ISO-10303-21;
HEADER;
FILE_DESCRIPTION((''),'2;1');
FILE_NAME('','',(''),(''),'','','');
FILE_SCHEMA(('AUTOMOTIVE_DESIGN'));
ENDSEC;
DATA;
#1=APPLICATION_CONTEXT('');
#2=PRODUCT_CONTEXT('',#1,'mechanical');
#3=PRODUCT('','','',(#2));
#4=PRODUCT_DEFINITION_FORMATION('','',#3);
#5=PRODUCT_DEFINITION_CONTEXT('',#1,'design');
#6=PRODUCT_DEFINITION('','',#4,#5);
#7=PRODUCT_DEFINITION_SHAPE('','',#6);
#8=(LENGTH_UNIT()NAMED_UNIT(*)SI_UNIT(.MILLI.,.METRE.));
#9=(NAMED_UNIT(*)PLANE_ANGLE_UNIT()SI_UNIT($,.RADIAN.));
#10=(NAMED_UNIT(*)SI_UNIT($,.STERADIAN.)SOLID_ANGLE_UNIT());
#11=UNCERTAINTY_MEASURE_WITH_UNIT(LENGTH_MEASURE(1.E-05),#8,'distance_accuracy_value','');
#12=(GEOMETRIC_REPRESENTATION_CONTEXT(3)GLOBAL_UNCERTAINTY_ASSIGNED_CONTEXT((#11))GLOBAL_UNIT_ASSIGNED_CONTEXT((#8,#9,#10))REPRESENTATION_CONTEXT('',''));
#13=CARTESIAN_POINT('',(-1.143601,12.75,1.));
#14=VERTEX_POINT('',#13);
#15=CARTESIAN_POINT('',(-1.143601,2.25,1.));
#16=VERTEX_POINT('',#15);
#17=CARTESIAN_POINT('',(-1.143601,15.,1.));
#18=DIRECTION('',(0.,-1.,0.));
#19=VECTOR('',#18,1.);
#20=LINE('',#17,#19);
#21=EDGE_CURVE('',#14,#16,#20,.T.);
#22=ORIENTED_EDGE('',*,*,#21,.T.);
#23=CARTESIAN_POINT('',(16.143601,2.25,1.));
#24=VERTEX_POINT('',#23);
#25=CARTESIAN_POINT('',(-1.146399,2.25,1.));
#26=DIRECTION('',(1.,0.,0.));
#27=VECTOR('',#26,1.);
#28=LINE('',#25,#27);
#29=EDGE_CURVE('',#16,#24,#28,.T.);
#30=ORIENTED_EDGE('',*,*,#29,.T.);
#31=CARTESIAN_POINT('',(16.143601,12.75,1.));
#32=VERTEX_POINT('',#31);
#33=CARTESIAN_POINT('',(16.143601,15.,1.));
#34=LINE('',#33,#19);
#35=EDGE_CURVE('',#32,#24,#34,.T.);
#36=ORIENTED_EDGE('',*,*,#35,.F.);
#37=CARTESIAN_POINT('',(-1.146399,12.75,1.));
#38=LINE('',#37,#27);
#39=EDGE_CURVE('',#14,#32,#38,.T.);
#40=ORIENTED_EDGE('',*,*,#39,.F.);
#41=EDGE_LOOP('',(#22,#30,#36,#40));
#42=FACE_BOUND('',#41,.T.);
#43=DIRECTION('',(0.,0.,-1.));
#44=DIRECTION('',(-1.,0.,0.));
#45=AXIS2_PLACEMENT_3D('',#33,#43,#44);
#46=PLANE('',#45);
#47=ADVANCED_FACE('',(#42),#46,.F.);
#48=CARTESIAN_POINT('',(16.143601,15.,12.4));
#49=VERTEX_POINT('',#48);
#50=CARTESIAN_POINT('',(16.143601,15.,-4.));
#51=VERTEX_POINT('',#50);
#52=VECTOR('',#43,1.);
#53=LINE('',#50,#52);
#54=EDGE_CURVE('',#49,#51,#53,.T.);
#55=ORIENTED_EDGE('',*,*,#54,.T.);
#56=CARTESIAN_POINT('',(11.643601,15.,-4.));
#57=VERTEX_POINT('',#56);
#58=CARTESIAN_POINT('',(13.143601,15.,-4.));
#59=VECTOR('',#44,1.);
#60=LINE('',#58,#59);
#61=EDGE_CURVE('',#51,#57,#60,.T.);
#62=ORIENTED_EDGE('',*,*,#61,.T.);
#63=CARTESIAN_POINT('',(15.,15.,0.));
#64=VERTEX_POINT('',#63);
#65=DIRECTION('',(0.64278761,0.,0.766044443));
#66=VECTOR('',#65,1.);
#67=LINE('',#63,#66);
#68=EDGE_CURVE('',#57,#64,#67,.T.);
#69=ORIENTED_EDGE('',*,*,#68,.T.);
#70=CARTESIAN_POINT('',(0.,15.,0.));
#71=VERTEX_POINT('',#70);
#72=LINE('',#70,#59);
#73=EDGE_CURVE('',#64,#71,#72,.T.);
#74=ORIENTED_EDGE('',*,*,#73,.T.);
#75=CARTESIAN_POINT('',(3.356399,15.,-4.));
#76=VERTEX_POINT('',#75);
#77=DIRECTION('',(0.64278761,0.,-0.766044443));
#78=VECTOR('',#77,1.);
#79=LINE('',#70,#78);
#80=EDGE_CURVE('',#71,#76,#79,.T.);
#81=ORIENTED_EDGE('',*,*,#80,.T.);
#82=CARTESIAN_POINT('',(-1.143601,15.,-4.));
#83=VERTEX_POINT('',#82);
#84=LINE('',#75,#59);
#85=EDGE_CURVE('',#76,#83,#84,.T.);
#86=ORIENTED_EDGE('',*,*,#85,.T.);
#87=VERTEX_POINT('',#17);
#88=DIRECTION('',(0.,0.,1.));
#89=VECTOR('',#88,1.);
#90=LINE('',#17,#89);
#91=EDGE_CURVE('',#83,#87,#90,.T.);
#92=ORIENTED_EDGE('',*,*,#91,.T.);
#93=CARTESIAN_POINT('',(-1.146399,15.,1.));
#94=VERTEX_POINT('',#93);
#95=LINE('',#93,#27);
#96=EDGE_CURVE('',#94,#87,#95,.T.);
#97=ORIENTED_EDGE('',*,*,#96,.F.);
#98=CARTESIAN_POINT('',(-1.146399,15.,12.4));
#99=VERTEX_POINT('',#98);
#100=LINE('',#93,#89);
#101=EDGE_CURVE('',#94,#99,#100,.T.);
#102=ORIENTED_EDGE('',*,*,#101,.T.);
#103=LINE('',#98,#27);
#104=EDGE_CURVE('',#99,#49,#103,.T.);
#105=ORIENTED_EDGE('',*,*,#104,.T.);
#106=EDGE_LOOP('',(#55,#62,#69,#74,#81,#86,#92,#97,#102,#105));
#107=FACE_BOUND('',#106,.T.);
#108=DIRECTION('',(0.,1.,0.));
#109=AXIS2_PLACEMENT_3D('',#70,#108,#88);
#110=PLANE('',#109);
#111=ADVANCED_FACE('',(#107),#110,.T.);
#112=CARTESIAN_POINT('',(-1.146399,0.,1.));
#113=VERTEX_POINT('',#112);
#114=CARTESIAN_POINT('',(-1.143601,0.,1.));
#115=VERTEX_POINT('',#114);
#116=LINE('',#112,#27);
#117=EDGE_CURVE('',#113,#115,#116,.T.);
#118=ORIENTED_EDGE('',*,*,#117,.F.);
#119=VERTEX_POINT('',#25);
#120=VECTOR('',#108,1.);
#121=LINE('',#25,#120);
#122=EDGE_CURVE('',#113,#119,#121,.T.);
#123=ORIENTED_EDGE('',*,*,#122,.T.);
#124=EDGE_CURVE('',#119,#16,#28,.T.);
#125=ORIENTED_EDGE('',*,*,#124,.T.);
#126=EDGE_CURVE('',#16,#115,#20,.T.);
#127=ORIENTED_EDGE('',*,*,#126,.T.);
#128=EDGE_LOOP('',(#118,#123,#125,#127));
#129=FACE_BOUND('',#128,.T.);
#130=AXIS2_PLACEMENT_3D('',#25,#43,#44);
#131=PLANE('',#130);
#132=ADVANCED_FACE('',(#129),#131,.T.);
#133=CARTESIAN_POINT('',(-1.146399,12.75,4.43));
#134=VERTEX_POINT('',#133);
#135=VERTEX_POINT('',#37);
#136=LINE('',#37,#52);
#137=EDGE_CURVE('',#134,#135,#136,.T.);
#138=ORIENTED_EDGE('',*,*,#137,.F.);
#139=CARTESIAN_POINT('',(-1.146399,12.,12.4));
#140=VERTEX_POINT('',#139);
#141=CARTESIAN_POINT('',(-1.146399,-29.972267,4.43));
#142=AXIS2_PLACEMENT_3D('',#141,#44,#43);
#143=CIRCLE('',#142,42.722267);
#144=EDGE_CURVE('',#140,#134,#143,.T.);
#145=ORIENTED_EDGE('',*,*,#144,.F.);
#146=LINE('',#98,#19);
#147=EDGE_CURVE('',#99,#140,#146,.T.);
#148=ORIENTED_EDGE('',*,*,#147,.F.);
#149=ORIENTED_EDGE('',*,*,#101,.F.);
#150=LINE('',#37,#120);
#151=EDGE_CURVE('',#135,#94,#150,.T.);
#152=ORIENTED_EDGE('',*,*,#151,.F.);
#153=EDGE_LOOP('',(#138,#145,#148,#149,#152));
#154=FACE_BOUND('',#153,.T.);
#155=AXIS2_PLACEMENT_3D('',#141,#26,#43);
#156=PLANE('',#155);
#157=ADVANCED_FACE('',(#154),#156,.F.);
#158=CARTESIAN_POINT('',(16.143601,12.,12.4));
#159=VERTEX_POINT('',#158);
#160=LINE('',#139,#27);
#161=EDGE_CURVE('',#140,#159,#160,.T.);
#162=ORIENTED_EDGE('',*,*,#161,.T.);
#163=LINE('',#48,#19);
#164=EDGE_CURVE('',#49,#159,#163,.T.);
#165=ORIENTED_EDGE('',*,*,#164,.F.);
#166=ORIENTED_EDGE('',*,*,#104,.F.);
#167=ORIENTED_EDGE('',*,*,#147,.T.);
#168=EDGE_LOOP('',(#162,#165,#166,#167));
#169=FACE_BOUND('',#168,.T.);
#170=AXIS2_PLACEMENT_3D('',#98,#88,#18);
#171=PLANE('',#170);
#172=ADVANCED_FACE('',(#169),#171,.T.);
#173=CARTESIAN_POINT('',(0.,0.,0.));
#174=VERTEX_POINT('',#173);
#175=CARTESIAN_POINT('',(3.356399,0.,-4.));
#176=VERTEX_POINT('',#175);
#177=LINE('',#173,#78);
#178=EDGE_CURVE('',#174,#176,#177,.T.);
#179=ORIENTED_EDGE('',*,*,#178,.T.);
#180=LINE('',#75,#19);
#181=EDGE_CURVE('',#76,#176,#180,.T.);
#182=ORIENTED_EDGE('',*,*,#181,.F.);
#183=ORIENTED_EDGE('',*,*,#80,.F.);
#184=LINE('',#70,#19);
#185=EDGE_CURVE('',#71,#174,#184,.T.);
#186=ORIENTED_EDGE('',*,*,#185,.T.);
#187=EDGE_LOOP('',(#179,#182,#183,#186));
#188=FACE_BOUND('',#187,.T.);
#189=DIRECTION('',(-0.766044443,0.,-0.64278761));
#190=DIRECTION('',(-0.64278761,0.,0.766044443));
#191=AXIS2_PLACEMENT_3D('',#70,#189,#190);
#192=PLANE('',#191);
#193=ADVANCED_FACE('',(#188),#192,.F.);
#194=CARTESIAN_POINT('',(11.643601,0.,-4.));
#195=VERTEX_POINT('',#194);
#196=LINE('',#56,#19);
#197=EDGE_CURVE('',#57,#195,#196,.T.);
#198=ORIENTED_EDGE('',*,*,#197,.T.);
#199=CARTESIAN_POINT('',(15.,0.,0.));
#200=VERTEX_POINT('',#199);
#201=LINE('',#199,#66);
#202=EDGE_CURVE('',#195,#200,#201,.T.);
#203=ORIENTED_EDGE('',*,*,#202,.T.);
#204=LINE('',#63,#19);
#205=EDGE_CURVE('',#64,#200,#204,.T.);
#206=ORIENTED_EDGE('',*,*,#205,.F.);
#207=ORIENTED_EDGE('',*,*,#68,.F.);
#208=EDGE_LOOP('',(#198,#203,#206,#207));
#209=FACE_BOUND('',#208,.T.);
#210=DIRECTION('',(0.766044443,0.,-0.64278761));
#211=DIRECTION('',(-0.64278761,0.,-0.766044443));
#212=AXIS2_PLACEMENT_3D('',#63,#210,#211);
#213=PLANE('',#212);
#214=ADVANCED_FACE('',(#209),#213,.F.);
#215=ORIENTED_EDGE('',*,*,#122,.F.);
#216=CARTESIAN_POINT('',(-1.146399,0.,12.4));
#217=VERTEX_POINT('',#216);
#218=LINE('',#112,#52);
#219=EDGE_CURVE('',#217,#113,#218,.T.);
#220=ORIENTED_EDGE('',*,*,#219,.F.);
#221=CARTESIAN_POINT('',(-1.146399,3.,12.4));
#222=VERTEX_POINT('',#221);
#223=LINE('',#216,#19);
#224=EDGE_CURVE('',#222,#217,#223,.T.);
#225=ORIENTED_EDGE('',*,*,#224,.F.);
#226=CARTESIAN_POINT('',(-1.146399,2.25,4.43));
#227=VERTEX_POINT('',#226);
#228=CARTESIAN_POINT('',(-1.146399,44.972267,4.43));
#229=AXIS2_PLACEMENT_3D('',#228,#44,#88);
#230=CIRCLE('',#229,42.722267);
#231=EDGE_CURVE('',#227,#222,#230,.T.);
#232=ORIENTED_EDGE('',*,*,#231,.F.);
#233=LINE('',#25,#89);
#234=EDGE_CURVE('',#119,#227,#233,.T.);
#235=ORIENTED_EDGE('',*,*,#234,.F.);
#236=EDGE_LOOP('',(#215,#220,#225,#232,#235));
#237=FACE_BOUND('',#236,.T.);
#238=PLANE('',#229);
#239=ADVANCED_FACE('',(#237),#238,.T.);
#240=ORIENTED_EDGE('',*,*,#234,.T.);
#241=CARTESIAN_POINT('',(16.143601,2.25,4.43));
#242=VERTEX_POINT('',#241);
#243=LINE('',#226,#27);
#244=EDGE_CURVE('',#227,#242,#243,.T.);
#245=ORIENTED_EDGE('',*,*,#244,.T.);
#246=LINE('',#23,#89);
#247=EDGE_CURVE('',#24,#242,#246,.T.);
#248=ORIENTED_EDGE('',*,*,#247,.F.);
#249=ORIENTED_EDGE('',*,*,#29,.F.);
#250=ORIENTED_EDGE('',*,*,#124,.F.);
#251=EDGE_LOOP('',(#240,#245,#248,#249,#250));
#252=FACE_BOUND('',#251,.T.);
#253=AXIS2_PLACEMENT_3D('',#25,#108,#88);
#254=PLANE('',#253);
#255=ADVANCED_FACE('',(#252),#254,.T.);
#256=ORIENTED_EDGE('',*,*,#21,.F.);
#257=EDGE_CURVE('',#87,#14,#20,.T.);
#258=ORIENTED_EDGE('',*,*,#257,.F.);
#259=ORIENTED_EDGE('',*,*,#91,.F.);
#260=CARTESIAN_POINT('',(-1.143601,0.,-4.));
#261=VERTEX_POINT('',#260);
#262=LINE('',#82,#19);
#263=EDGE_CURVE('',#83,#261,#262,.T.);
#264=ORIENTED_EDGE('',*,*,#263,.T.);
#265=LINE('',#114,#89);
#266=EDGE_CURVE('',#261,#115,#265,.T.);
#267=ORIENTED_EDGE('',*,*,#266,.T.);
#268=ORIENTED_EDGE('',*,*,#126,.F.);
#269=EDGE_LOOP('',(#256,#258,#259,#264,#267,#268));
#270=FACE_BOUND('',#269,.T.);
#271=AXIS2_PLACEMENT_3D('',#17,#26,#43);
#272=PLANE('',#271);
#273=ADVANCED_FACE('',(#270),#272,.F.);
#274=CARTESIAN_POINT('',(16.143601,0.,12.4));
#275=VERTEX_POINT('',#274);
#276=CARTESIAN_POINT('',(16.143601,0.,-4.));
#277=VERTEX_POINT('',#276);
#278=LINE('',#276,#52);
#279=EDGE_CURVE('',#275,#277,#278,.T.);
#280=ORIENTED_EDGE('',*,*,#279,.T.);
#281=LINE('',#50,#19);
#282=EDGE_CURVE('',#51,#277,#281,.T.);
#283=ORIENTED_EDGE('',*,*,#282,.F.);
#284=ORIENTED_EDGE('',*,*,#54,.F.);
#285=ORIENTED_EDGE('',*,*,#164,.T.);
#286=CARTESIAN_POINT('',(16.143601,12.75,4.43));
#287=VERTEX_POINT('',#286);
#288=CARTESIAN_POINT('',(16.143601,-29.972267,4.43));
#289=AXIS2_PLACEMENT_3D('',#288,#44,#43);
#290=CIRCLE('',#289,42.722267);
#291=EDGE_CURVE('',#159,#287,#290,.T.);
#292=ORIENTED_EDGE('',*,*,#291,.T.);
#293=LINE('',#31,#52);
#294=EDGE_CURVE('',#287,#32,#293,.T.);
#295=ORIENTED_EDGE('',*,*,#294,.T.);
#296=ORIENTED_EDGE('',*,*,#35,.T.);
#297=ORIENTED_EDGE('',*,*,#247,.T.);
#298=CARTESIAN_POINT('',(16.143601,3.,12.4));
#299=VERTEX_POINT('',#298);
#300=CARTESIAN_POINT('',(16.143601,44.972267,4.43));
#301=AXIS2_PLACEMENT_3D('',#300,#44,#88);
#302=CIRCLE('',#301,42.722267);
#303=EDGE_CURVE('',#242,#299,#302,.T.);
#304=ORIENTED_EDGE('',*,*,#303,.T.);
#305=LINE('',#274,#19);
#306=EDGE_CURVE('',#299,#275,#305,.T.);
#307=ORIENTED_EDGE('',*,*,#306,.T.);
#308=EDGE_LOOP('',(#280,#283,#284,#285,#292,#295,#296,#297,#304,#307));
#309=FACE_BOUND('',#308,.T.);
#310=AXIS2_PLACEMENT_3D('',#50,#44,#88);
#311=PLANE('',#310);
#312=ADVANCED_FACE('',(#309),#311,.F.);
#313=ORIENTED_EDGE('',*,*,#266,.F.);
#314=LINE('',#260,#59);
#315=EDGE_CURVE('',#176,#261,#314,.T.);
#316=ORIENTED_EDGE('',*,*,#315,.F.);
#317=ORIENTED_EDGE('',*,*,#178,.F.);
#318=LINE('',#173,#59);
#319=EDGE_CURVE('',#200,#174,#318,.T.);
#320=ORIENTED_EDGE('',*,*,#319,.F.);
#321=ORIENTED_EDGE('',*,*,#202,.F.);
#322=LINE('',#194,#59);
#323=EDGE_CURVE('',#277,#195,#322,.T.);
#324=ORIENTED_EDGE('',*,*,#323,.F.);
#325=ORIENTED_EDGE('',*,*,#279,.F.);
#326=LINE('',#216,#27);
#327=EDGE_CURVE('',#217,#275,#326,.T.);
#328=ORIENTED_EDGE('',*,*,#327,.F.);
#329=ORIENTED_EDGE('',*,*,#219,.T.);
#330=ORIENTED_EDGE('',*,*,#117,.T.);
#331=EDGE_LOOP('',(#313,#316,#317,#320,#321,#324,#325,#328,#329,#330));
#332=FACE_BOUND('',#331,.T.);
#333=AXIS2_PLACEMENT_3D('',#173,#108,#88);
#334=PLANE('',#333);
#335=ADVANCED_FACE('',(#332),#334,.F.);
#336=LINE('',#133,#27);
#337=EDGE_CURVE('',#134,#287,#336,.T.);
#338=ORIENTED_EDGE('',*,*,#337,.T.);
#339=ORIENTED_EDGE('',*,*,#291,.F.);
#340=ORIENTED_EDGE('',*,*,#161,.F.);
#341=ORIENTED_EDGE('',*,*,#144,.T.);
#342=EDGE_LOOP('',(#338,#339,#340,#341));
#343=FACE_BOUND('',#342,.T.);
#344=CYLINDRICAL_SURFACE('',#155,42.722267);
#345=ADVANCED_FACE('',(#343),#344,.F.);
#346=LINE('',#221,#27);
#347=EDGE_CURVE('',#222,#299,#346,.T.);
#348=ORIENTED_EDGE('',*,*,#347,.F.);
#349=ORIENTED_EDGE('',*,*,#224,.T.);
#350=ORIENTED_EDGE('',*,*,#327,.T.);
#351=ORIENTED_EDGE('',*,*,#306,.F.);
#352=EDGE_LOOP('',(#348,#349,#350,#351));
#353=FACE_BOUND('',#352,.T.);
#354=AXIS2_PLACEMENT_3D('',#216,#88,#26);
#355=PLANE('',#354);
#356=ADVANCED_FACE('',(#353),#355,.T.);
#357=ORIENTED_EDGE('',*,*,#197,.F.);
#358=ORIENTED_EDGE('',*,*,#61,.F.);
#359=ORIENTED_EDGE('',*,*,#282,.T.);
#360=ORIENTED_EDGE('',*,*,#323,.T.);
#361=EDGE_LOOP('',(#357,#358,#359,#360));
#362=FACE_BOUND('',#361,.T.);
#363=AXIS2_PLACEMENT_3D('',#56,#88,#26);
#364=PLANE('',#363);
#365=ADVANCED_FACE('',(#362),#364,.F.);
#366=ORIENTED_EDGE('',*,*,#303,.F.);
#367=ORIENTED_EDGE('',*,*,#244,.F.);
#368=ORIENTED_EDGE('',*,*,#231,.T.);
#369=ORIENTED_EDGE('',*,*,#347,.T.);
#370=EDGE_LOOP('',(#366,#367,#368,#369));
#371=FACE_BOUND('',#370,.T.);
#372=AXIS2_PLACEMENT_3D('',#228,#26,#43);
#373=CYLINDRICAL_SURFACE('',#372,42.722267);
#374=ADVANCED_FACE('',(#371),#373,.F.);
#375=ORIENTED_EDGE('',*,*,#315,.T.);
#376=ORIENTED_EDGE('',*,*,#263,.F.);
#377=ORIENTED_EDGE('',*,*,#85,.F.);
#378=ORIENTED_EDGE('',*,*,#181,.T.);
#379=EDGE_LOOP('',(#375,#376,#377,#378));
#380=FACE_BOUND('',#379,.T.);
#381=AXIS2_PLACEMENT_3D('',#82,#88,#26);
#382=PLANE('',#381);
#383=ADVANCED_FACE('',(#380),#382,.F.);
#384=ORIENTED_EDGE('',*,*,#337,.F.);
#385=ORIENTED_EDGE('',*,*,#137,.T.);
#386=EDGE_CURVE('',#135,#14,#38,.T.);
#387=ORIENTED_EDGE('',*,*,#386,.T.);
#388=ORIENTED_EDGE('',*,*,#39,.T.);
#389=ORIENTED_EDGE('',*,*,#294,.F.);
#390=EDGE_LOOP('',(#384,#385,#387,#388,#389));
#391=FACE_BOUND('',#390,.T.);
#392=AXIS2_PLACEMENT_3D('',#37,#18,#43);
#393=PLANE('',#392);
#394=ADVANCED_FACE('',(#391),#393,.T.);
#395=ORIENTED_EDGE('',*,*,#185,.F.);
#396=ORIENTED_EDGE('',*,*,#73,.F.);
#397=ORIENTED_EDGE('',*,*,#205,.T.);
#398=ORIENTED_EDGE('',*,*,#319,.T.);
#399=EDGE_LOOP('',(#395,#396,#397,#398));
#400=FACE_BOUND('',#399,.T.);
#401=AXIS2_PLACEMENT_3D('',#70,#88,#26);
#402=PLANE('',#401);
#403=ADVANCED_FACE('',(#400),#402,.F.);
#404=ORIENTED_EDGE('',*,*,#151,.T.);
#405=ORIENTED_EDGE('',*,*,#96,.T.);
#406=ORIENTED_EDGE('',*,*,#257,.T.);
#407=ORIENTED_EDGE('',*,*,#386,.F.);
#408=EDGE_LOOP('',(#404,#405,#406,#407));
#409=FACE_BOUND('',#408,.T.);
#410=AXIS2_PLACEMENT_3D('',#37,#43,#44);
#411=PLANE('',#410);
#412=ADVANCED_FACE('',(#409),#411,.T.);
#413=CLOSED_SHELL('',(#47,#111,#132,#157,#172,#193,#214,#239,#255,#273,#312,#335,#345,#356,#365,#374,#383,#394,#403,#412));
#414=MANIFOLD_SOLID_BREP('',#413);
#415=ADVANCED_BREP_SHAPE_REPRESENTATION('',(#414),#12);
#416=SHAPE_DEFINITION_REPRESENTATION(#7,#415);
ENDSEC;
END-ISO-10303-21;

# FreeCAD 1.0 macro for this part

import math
import FreeCAD as App
import Part
import Sketcher
Q = App.Units.Quantity


def add_polygon(sketch, points):
    """Adds a closed chain of lines whose ends are joined by coincident constraints."""
    first, n = sketch.GeometryCount, len(points)
    for a, b in zip(points, points[1:] + points[:1]):
        sketch.addGeometry(Part.LineSegment(App.Vector(*a, 0), App.Vector(*b, 0)), False)
    for i in range(n):
        sketch.addConstraint(Sketcher.Constraint("Coincident", first + i, 2, first + (i + 1) % n, 1))

doc = App.newDocument("Part")
body = doc.addObject("PartDesign::Body", "Body")

# Sketch on XZ plane
sketch1 = doc.addObject("Sketcher::SketchObject", "Sketch")
body.addObject(sketch1)
sketch1.AttachmentSupport = (doc.XZ_Plane, [""])
sketch1.MapMode = "FlatFace"
add_polygon(sketch1, [(15, 0), (0, 0), (3.356399, -4), (-1.143601, -4), (-1.143601, 1), (16.143601, 1), (16.143601, -4), (11.643601, -4)])  # lines 0-7
sketch1.addConstraint([
    Sketcher.Constraint("Horizontal", 0),
    Sketcher.Constraint("Horizontal", 2),
    Sketcher.Constraint("Vertical", 3),
    Sketcher.Constraint("Horizontal", 4),
    Sketcher.Constraint("Vertical", 5),
    Sketcher.Constraint("Horizontal", 6),
    Sketcher.Constraint("Coincident", 0, 2, -1, 1),
    Sketcher.Constraint("Horizontal", 2, 2, 5, 2),
    Sketcher.Constraint("Equal", 2, 6),
    Sketcher.Constraint("Equal", 1, 7),
    Sketcher.Constraint("DistanceX", 0, 2, 0, 1, Q("15 mm")),
    Sketcher.Constraint("DistanceY", 3, 1, 3, 2, Q("5 mm")),
    Sketcher.Constraint("Angle", 1, Q("-50 deg")),
    Sketcher.Constraint("DistanceX", 2, 2, 2, 1, Q("4.5 mm")),
    Sketcher.Constraint("DistanceY", 1, 2, -1, 1, Q("4 mm")),
])
pad1 = doc.addObject("PartDesign::Pad", "Pad")
body.addObject(pad1)
pad1.Profile = sketch1
pad1.Length = 15
pad1.Reversed = True

# Sketch on YZ plane
sketch2 = doc.addObject("Sketcher::SketchObject", "Sketch001")
body.addObject(sketch2)
sketch2.AttachmentSupport = (doc.YZ_Plane, [""])
sketch2.MapMode = "FlatFace"
sketch2.AttachmentOffset = App.Placement(App.Vector(0, 0, 16.143601), App.Rotation())
sketch2.addGeometry([
    Part.LineSegment(App.Vector(2.25, 1, 0), App.Vector(2.25, 4.43, 0)),  # 0
    Part.ArcOfCircle(Part.Circle(App.Vector(44.972267, 4.43, 0), App.Vector(0, 0, 1), 42.722267), math.radians(169.248266), math.radians(180)),  # 1
    Part.LineSegment(App.Vector(3, 12.4, 0), App.Vector(0, 12.4, 0)),  # 2
    Part.LineSegment(App.Vector(0, 12.4, 0), App.Vector(0, 1, 0)),  # 3
    Part.LineSegment(App.Vector(0, 1, 0), App.Vector(2.25, 1, 0)),  # 4
    Part.LineSegment(App.Vector(12.75, 4.43, 0), App.Vector(12.75, 1, 0)),  # 5
    Part.LineSegment(App.Vector(12.75, 1, 0), App.Vector(15, 1, 0)),  # 6
    Part.LineSegment(App.Vector(15, 1, 0), App.Vector(15, 12.4, 0)),  # 7
    Part.LineSegment(App.Vector(15, 12.4, 0), App.Vector(12, 12.4, 0)),  # 8
    Part.ArcOfCircle(Part.Circle(App.Vector(-29.972267, 4.43, 0), App.Vector(0, 0, 1), 42.722267), math.radians(0), math.radians(10.751734)),  # 9
], False)
sketch2.addConstraint([
    Sketcher.Constraint("Tangent", 0, 2, 1, 2),
    Sketcher.Constraint("Coincident", 1, 1, 2, 1),
    Sketcher.Constraint("Coincident", 2, 2, 3, 1),
    Sketcher.Constraint("Coincident", 3, 2, 4, 1),
    Sketcher.Constraint("Coincident", 4, 2, 0, 1),
    Sketcher.Constraint("Coincident", 5, 2, 6, 1),
    Sketcher.Constraint("Coincident", 6, 2, 7, 1),
    Sketcher.Constraint("Coincident", 7, 2, 8, 1),
    Sketcher.Constraint("Coincident", 8, 2, 9, 2),
    Sketcher.Constraint("Tangent", 9, 1, 5, 1),
    Sketcher.Constraint("Vertical", 0),
    Sketcher.Constraint("Horizontal", 2),
    Sketcher.Constraint("Vertical", 3),
    Sketcher.Constraint("Horizontal", 4),
    Sketcher.Constraint("Vertical", 5),
    Sketcher.Constraint("Horizontal", 6),
    Sketcher.Constraint("Vertical", 7),
    Sketcher.Constraint("Horizontal", 8),
    Sketcher.Constraint("Equal", 1, 9),
    Sketcher.Constraint("PointOnObject", 2, 2, -2),
    Sketcher.Constraint("Horizontal", 1, 3, 9, 3),
    Sketcher.Constraint("Horizontal", 4, 2, 5, 2),
    Sketcher.Constraint("Horizontal", 2, 2, 7, 2),
    Sketcher.Constraint("Equal", 4, 6),
    Sketcher.Constraint("DistanceX", 2, 2, 2, 1, Q("3 mm")),
    Sketcher.Constraint("DistanceY", 3, 2, 3, 1, Q("11.4 mm")),
    Sketcher.Constraint("DistanceY", -1, 1, 3, 2, Q("1 mm")),
    Sketcher.Constraint("DistanceX", -1, 1, 6, 2, Q("15 mm")),
    Sketcher.Constraint("DistanceX", 4, 1, 4, 2, Q("2.25 mm")),
    Sketcher.Constraint("DistanceY", 0, 1, 0, 2, Q("3.43 mm")),
])
pad2 = doc.addObject("PartDesign::Pad", "Pad001")
body.addObject(pad2)
pad2.Profile = sketch2
pad2.Length = 17.29
pad2.Reversed = True

doc.recompute()
